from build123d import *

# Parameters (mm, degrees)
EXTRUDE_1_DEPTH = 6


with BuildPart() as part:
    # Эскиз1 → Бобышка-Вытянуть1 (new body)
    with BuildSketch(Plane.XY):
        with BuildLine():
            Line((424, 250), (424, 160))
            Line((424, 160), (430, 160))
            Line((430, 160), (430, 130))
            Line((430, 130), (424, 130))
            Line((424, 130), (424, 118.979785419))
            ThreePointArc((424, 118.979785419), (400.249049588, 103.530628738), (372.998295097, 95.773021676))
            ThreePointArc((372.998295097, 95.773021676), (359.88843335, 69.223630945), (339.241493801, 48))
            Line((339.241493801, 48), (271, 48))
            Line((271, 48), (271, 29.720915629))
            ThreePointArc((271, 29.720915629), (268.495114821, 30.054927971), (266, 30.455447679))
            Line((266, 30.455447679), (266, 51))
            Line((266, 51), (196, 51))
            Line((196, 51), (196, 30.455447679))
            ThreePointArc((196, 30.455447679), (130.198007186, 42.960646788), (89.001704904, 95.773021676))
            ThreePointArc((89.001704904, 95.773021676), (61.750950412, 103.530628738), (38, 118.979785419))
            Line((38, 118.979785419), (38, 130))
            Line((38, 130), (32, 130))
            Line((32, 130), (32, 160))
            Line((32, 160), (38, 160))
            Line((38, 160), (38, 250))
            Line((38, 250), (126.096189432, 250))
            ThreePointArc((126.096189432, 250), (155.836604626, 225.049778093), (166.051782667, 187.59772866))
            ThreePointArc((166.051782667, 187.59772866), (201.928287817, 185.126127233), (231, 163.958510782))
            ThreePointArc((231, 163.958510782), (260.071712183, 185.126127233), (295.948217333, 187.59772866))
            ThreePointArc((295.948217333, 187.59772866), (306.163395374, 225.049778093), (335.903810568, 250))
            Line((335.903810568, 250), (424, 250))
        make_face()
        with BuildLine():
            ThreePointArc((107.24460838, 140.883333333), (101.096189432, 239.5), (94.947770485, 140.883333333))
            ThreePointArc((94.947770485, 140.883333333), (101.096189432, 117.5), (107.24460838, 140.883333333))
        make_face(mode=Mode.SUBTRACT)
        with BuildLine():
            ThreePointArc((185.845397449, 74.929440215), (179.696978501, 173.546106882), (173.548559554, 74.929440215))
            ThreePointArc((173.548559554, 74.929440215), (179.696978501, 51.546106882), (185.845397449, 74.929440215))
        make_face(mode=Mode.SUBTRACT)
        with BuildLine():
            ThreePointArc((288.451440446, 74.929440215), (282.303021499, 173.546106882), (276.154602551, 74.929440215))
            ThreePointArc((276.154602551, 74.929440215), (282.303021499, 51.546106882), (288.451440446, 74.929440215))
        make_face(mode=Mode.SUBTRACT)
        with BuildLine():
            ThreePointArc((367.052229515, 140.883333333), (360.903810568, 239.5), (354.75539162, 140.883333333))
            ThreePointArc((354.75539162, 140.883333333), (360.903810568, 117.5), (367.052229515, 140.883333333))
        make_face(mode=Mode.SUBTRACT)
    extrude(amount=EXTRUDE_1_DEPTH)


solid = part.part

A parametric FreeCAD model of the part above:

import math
import FreeCAD as App
import Part
import Sketcher

V = App.Vector

doc = App.newDocument("Part")
params = doc.addObject("Spreadsheet::Sheet", "Params")
for row, (alias, value) in enumerate([
    ("sketch1_radius", "65 mm"),
    ("sketch1_radius2", "95 mm"),
    ("sketch1_radius3", "12.5 mm"),
    ("sketch1_radius4", "49.5 mm"),
    ("sketch1_width", "6 mm"),
    ("pad1_length", "6 mm"),
], start=1):
    params.set(f"A{row}", alias)
    params.set(f"B{row}", "=" + value)
    params.setAlias(f"B{row}", alias)

body = doc.addObject("PartDesign::Body", "Body")

# Sketch on XY plane
sketch1 = doc.addObject("Sketcher::SketchObject", "Sketch")
body.addObject(sketch1)
sketch1.AttachmentSupport = (doc.XY_Plane, [""])
sketch1.MapMode = "FlatFace"
sketch1.addGeometry(Part.LineSegment(V(424, 160, 0), V(424, 250, 0)), False)
sketch1.addGeometry(Part.LineSegment(V(424, 250, 0), V(335.903811, 250, 0)), False)
sketch1.addGeometry(Part.ArcOfCircle(Part.Circle(V(360.903811, 190, 0), V(0, 0, 1), 65), math.radians(112.619865), math.radians(182.118021)), False)
sketch1.addGeometry(Part.ArcOfCircle(Part.Circle(V(282.303021, 124.046107, 0), V(0, 0, 1), 65), math.radians(77.881979), math.radians(142.118021)), False)
sketch1.addGeometry(Part.ArcOfCircle(Part.Circle(V(179.696979, 124.046107, 0), V(0, 0, 1), 65), math.radians(37.881979), math.radians(102.118021)), False)
sketch1.addGeometry(Part.ArcOfCircle(Part.Circle(V(101.096189, 190, 0), V(0, 0, 1), 65), math.radians(-2.118021), math.radians(67.380135)), False)
sketch1.addGeometry(Part.LineSegment(V(126.096189, 250, 0), V(38, 250, 0)), False)
sketch1.addGeometry(Part.LineSegment(V(38, 250, 0), V(38, 160, 0)), False)
sketch1.addGeometry(Part.LineSegment(V(38, 160, 0), V(32, 160, 0)), False)
sketch1.addGeometry(Part.LineSegment(V(32, 160, 0), V(32, 130, 0)), False)
sketch1.addGeometry(Part.LineSegment(V(32, 130, 0), V(38, 130, 0)), False)
sketch1.addGeometry(Part.LineSegment(V(38, 130, 0), V(38, 118.979785, 0)), False)
sketch1.addGeometry(Part.ArcOfCircle(Part.Circle(V(101.096189, 190, 0), V(0, 0, 1), 95), math.radians(-131.618713), math.radians(-97.314196)), False)
sketch1.addGeometry(Part.ArcOfCircle(Part.Circle(V(179.696979, 124.046107, 0), V(0, 0, 1), 95), math.radians(-162.685804), math.radians(-80.118515)), False)
sketch1.addGeometry(Part.LineSegment(V(196, 30.455448, 0), V(196, 51, 0)), False)
sketch1.addGeometry(Part.LineSegment(V(196, 51, 0), V(266, 51, 0)), False)
sketch1.addGeometry(Part.LineSegment(V(266, 51, 0), V(266, 30.455448, 0)), False)
sketch1.addGeometry(Part.ArcOfCircle(Part.Circle(V(282.303022, 124.046108, 0), V(0, 0, 1), 95.000001), math.radians(-99.881485), math.radians(-96.833191)), False)
sketch1.addGeometry(Part.LineSegment(V(271, 29.720916, 0), V(271, 48, 0)), False)
sketch1.addGeometry(Part.LineSegment(V(271, 48, 0), V(339.241494, 48, 0)), False)
sketch1.addGeometry(Part.ArcOfCircle(Part.Circle(V(282.303021, 124.046107, 0), V(0, 0, 1), 95), math.radians(-53.176474), math.radians(-17.314196)), False)
sketch1.addGeometry(Part.ArcOfCircle(Part.Circle(V(360.903811, 190, 0), V(0, 0, 1), 95), math.radians(-82.685804), math.radians(-48.381287)), False)
sketch1.addGeometry(Part.LineSegment(V(424, 118.979785, 0), V(424, 130, 0)), False)
sketch1.addGeometry(Part.LineSegment(V(424, 130, 0), V(430, 130, 0)), False)
sketch1.addGeometry(Part.LineSegment(V(430, 130, 0), V(430, 160, 0)), False)
sketch1.addGeometry(Part.LineSegment(V(430, 160, 0), V(424, 160, 0)), False)
sketch1.addGeometry(Part.ArcOfCircle(Part.Circle(V(282.303021, 64.046107, 0), V(0, 0, 1), 12.5), math.radians(119.463797), math.radians(420.536203)), False)
sketch1.addGeometry(Part.ArcOfCircle(Part.Circle(V(282.303021, 124.046107, 0), V(0, 0, 1), 49.5), math.radians(-82.864835), math.radians(262.864835)), False)
sketch1.addGeometry(Part.ArcOfCircle(Part.Circle(V(179.696979, 64.046107, 0), V(0, 0, 1), 12.5), math.radians(119.463797), math.radians(420.536203)), False)
sketch1.addGeometry(Part.ArcOfCircle(Part.Circle(V(179.696979, 124.046107, 0), V(0, 0, 1), 49.5), math.radians(-82.864835), math.radians(262.864835)), False)
sketch1.addGeometry(Part.ArcOfCircle(Part.Circle(V(360.903811, 130, 0), V(0, 0, 1), 12.5), math.radians(119.463797), math.radians(420.536203)), False)
sketch1.addGeometry(Part.ArcOfCircle(Part.Circle(V(360.903811, 190, 0), V(0, 0, 1), 49.5), math.radians(-82.864835), math.radians(262.864835)), False)
sketch1.addGeometry(Part.ArcOfCircle(Part.Circle(V(101.096189, 130, 0), V(0, 0, 1), 12.5), math.radians(119.463797), math.radians(420.536203)), False)
sketch1.addGeometry(Part.ArcOfCircle(Part.Circle(V(101.096189, 190, 0), V(0, 0, 1), 49.5), math.radians(-82.864835), math.radians(262.864835)), False)
sketch1.addConstraint(Sketcher.Constraint("Coincident", 0, 2, 1, 1))
sketch1.addConstraint(Sketcher.Constraint("Coincident", 1, 2, 2, 1))
sketch1.addConstraint(Sketcher.Constraint("Coincident", 2, 2, 3, 1))
sketch1.addConstraint(Sketcher.Constraint("Coincident", 3, 2, 4, 1))
sketch1.addConstraint(Sketcher.Constraint("Coincident", 4, 2, 5, 1))
sketch1.addConstraint(Sketcher.Constraint("Coincident", 5, 2, 6, 1))
sketch1.addConstraint(Sketcher.Constraint("Coincident", 6, 2, 7, 1))
sketch1.addConstraint(Sketcher.Constraint("Coincident", 7, 2, 8, 1))
sketch1.addConstraint(Sketcher.Constraint("Coincident", 8, 2, 9, 1))
sketch1.addConstraint(Sketcher.Constraint("Coincident", 9, 2, 10, 1))
sketch1.addConstraint(Sketcher.Constraint("Coincident", 10, 2, 11, 1))
sketch1.addConstraint(Sketcher.Constraint("Coincident", 11, 2, 12, 1))
sketch1.addConstraint(Sketcher.Constraint("Coincident", 12, 2, 13, 1))
sketch1.addConstraint(Sketcher.Constraint("Coincident", 13, 2, 14, 1))
sketch1.addConstraint(Sketcher.Constraint("Coincident", 14, 2, 15, 1))
sketch1.addConstraint(Sketcher.Constraint("Coincident", 15, 2, 16, 1))
sketch1.addConstraint(Sketcher.Constraint("Coincident", 16, 2, 17, 1))
sketch1.addConstraint(Sketcher.Constraint("Coincident", 17, 2, 18, 1))
sketch1.addConstraint(Sketcher.Constraint("Coincident", 18, 2, 19, 1))
sketch1.addConstraint(Sketcher.Constraint("Coincident", 19, 2, 20, 1))
sketch1.addConstraint(Sketcher.Constraint("Coincident", 20, 2, 21, 1))
sketch1.addConstraint(Sketcher.Constraint("Coincident", 21, 2, 22, 1))
sketch1.addConstraint(Sketcher.Constraint("Coincident", 22, 2, 23, 1))
sketch1.addConstraint(Sketcher.Constraint("Coincident", 23, 2, 24, 1))
sketch1.addConstraint(Sketcher.Constraint("Coincident", 24, 2, 25, 1))
sketch1.addConstraint(Sketcher.Constraint("Coincident", 25, 2, 0, 1))
sketch1.addConstraint(Sketcher.Constraint("Coincident", 26, 1, 27, 2))
sketch1.addConstraint(Sketcher.Constraint("Coincident", 27, 1, 26, 2))
sketch1.addConstraint(Sketcher.Constraint("Coincident", 28, 1, 29, 2))
sketch1.addConstraint(Sketcher.Constraint("Coincident", 29, 1, 28, 2))
sketch1.addConstraint(Sketcher.Constraint("Coincident", 30, 1, 31, 2))
sketch1.addConstraint(Sketcher.Constraint("Coincident", 31, 1, 30, 2))
sketch1.addConstraint(Sketcher.Constraint("Coincident", 32, 1, 33, 2))
sketch1.addConstraint(Sketcher.Constraint("Coincident", 33, 1, 32, 2))
sketch1.addConstraint(Sketcher.Constraint("Vertical", 0))
sketch1.addConstraint(Sketcher.Constraint("Horizontal", 1))
sketch1.addConstraint(Sketcher.Constraint("Horizontal", 6))
sketch1.addConstraint(Sketcher.Constraint("Vertical", 7))
sketch1.addConstraint(Sketcher.Constraint("Horizontal", 8))
sketch1.addConstraint(Sketcher.Constraint("Vertical", 9))
sketch1.addConstraint(Sketcher.Constraint("Horizontal", 10))
sketch1.addConstraint(Sketcher.Constraint("Vertical", 11))
sketch1.addConstraint(Sketcher.Constraint("Vertical", 14))
sketch1.addConstraint(Sketcher.Constraint("Horizontal", 15))
sketch1.addConstraint(Sketcher.Constraint("Vertical", 16))
sketch1.addConstraint(Sketcher.Constraint("Vertical", 18))
sketch1.addConstraint(Sketcher.Constraint("Horizontal", 19))
sketch1.addConstraint(Sketcher.Constraint("Vertical", 22))
sketch1.addConstraint(Sketcher.Constraint("Horizontal", 23))
sketch1.addConstraint(Sketcher.Constraint("Vertical", 24))
sketch1.addConstraint(Sketcher.Constraint("Horizontal", 25))
sketch1.addConstraint(Sketcher.Constraint("Coincident", 12, 3, 5, 3))
sketch1.addConstraint(Sketcher.Constraint("Coincident", 13, 3, 4, 3))
sketch1.addConstraint(Sketcher.Constraint("Coincident", 17, 3, 3, 3))
sketch1.addConstraint(Sketcher.Constraint("Coincident", 20, 3, 3, 3))
sketch1.addConstraint(Sketcher.Constraint("Coincident", 21, 3, 2, 3))
sketch1.addConstraint(Sketcher.Constraint("Coincident", 27, 3, 3, 3))
sketch1.addConstraint(Sketcher.Constraint("Coincident", 29, 3, 4, 3))
sketch1.addConstraint(Sketcher.Constraint("Coincident", 31, 3, 2, 3))
sketch1.addConstraint(Sketcher.Constraint("Coincident", 33, 3, 5, 3))
sketch1.addConstraint(Sketcher.Constraint("Equal", 2, 3))
sketch1.addConstraint(Sketcher.Constraint("Equal", 3, 4))
sketch1.addConstraint(Sketcher.Constraint("Equal", 4, 5))
sketch1.addConstraint(Sketcher.Constraint("Equal", 12, 13))
sketch1.addConstraint(Sketcher.Constraint("Equal", 13, 17))
sketch1.addConstraint(Sketcher.Constraint("Equal", 17, 20))
sketch1.addConstraint(Sketcher.Constraint("Equal", 20, 21))
sketch1.addConstraint(Sketcher.Constraint("Equal", 26, 28))
sketch1.addConstraint(Sketcher.Constraint("Equal", 27, 29))
sketch1.addConstraint(Sketcher.Constraint("Equal", 28, 30))
sketch1.addConstraint(Sketcher.Constraint("Equal", 29, 31))
sketch1.addConstraint(Sketcher.Constraint("Equal", 30, 32))
sketch1.addConstraint(Sketcher.Constraint("Equal", 31, 33))
sketch1.addConstraint(Sketcher.Constraint("Horizontal", 3, 3, 4, 3))
sketch1.addConstraint(Sketcher.Constraint("Horizontal", 2, 3, 5, 3))
sketch1.addConstraint(Sketcher.Constraint("Horizontal", 26, 3, 28, 3))
sketch1.addConstraint(Sketcher.Constraint("Horizontal", 30, 3, 32, 3))
sketch1.addConstraint(Sketcher.Constraint("Horizontal", 2, 2, 4, 2))
sketch1.addConstraint(Sketcher.Constraint("Horizontal", 1, 2, 5, 2))
sketch1.addConstraint(Sketcher.Constraint("Horizontal", 32, 3, 9, 2))
sketch1.addConstraint(Sketcher.Constraint("Horizontal", 13, 2, 16, 2))
sketch1.addConstraint(Sketcher.Constraint("Horizontal", 11, 2, 21, 2))
sketch1.addConstraint(Sketcher.Constraint("Horizontal", 10, 2, 22, 2))
sketch1.addConstraint(Sketcher.Constraint("Horizontal", 8, 2, 24, 2))
sketch1.addConstraint(Sketcher.Constraint("Horizontal", 26, 1, 27, 1))
sketch1.addConstraint(Sketcher.Constraint("Horizontal", 27, 1, 28, 1))
sketch1.addConstraint(Sketcher.Constraint("Horizontal", 30, 1, 31, 1))
sketch1.addConstraint(Sketcher.Constraint("Horizontal", 31, 1, 32, 1))
sketch1.addConstraint(Sketcher.Constraint("Vertical", 7, 2, 10, 2))
sketch1.addConstraint(Sketcher.Constraint("Vertical", 0, 2, 21, 2))
sketch1.addConstraint(Sketcher.Constraint("Equal", 10, 23))
sketch1.addConstraint(Sketcher.Constraint("Radius", 2, 65.0))
sketch1.addConstraint(Sketcher.Constraint("Radius", 12, 95.0))
sketch1.addConstraint(Sketcher.Constraint("Radius", 26, 12.5))
sketch1.addConstraint(Sketcher.Constraint("Radius", 27, 49.5))
sketch1.addConstraint(Sketcher.Constraint("DistanceX", 8, 2, 8, 1, 6.0))
sketch1.addConstraint(Sketcher.Constraint("DistanceX", 15, 1, 15, 2, 70.0))
sketch1.addConstraint(Sketcher.Constraint("DistanceY", 0, 1, 0, 2, 90.0))
sketch1.addConstraint(Sketcher.Constraint("DistanceY", 9, 2, 9, 1, 30.0))
sketch1.addConstraint(Sketcher.Constraint("DistanceY", -1, 1, 2, 3, 190.0))
sketch1.addConstraint(Sketcher.Constraint("DistanceY", -1, 1, 30, 3, 130.0))
sketch1.addConstraint(Sketcher.Constraint("DistanceX", -1, 1, 0, 2, 424.0))
sketch1.addConstraint(Sketcher.Constraint("DistanceX", -1, 1, 3, 2, 231.0))
sketch1.addConstraint(Sketcher.Constraint("DistanceY", -1, 1, 14, 2, 51.0))
sketch1.addConstraint(Sketcher.Constraint("DistanceX", -1, 1, 17, 2, 271.0))
sketch1.addConstraint(Sketcher.Constraint("DistanceY", -1, 1, 18, 2, 48.0))
sketch1.addConstraint(Sketcher.Constraint("DistanceY", 26, 3, 3, 3, 60.0))
sketch1.addConstraint(Sketcher.Constraint("DistanceX", 1, 2, 1, 1, 88.096189))
sketch1.addConstraint(Sketcher.Constraint("DistanceX", 19, 2, 20, 2, 33.756801))
sketch1.addConstraint(Sketcher.Constraint("DistanceX", 19, 1, 19, 2, 68.241494))
sketch1.setExpression("Constraints[91]", "Params.sketch1_radius")
sketch1.setExpression("Constraints[92]", "Params.sketch1_radius2")
sketch1.setExpression("Constraints[93]", "Params.sketch1_radius3")
sketch1.setExpression("Constraints[94]", "Params.sketch1_radius4")
sketch1.setExpression("Constraints[95]", "Params.sketch1_width")
pad1 = doc.addObject("PartDesign::Pad", "Pad")
body.addObject(pad1)
pad1.Profile = sketch1
pad1.setExpression("Length", "Params.pad1_length")

doc.recompute()
